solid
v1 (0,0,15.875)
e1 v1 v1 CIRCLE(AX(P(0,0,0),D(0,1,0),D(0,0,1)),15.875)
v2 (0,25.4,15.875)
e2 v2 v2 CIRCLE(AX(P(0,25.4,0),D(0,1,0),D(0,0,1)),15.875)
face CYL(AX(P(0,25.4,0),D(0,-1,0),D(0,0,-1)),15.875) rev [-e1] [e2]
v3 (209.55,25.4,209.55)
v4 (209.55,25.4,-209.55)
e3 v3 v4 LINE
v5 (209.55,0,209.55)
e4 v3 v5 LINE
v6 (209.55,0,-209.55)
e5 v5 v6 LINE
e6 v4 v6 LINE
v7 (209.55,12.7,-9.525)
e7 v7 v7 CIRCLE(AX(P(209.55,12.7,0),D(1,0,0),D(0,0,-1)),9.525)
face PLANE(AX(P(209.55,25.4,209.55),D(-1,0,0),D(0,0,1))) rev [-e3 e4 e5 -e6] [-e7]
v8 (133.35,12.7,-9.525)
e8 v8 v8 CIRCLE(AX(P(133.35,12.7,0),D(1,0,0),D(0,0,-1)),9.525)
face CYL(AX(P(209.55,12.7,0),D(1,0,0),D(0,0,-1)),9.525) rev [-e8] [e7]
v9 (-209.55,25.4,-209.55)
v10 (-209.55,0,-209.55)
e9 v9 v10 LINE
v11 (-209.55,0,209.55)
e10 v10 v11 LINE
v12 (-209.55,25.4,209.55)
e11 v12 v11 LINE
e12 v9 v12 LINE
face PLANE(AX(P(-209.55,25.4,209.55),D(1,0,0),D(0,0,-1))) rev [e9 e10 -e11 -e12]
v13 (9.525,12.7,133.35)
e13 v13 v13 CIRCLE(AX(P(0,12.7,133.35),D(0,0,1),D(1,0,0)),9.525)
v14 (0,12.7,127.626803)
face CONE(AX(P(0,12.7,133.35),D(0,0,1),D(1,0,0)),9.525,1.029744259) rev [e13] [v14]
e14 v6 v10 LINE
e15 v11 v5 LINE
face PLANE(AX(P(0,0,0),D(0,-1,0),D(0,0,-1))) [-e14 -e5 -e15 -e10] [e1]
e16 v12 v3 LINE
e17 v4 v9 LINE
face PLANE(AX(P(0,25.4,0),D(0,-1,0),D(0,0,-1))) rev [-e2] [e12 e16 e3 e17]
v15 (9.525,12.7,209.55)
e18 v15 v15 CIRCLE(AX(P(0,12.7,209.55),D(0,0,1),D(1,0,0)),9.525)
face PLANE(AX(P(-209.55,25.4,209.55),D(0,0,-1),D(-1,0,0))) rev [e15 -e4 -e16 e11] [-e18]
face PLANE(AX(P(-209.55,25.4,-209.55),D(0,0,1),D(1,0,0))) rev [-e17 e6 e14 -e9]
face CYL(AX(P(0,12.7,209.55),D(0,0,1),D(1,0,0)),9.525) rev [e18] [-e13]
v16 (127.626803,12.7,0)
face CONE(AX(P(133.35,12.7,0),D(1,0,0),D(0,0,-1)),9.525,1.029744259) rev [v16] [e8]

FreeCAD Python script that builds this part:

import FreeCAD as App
import Part
import Sketcher

V = App.Vector
Q = App.Units.Quantity

doc = App.newDocument("Part")
body = doc.addObject("PartDesign::Body", "Body")

# Sketch on XZ plane
sketch1 = body.newObject("Sketcher::SketchObject", "Sketch")
sketch1.AttachmentSupport = (doc.getObject("XZ_Plane"), [""])
sketch1.MapMode = "FlatFace"
sketch1.addGeometry([
    Part.LineSegment(V(-210, -210, 0), V(-210, 210, 0)),  # 0
    Part.LineSegment(V(-210, 210, 0), V(210, 210, 0)),  # 1
    Part.LineSegment(V(210, 210, 0), V(210, -210, 0)),  # 2
    Part.LineSegment(V(210, -210, 0), V(-210, -210, 0)),  # 3
    Part.Circle(V(0, 0, 0), V(0, 0, 1), 16),  # 4
], False)
sketch1.addConstraint([
    Sketcher.Constraint("Coincident", 0, 2, 1, 1),
    Sketcher.Constraint("Coincident", 1, 2, 2, 1),
    Sketcher.Constraint("Coincident", 2, 2, 3, 1),
    Sketcher.Constraint("Coincident", 3, 2, 0, 1),
    Sketcher.Constraint("Vertical", 0),
    Sketcher.Constraint("Horizontal", 1),
    Sketcher.Constraint("Vertical", 2),
    Sketcher.Constraint("Horizontal", 3),
    Sketcher.Constraint("Coincident", 4, 3, -1, 1),
    Sketcher.Constraint("Symmetric", 0, 2, 2, 2, -1, 1),
    Sketcher.Constraint("Equal", 3, 0),
    Sketcher.Constraint("Diameter", 4, Q("1.25 in")),
    Sketcher.Constraint("DistanceX", 1, 1, 1, 2, Q("16.5 in")),
])
pad1 = body.newObject("PartDesign::Pad", "Pad")
pad1.Profile = sketch1
pad1.Length = Q("1 in")
pad1.Reversed = True

# Sketch on YZ plane
sketch2 = body.newObject("Sketcher::SketchObject", "Sketch001")
sketch2.AttachmentSupport = (doc.getObject("YZ_Plane"), [""])
sketch2.MapMode = "FlatFace"
sketch2.AttachmentOffset = App.Placement(V(0, 0, 8.25 * 25.4), App.Rotation())
sketch2.addGeometry(Part.Circle(V(13, 0, 0), V(0, 0, 1), 10), False)
sketch2.addConstraint([
    Sketcher.Constraint("PointOnObject", 0, 3, -1),
    Sketcher.Constraint("Diameter", 0, Q("0.75 in")),
    Sketcher.Constraint("DistanceX", -1, 1, 0, 3, Q("0.5 in")),
])
doc.recompute()
hole = body.newObject("PartDesign::Hole", "Hole")
hole.Profile = sketch2
hole.ThreadType = "None"
hole.Diameter = Q("0.75 in")
hole.DepthType = "Dimension"
hole.Depth = Q("3 in")
hole.DrillPoint = "Angled"
hole.DrillPointAngle = 118

# Sketch on XY plane
sketch3 = body.newObject("Sketcher::SketchObject", "Sketch002")
sketch3.AttachmentSupport = (doc.getObject("XY_Plane"), [""])
sketch3.MapMode = "FlatFace"
sketch3.AttachmentOffset = App.Placement(V(0, 0, 8.25 * 25.4), App.Rotation())
sketch3.addGeometry(Part.Circle(V(0, 13, 0), V(0, 0, 1), 10), False)
sketch3.addConstraint([
    Sketcher.Constraint("PointOnObject", 0, 3, -2),
    Sketcher.Constraint("Diameter", 0, Q("0.75 in")),
    Sketcher.Constraint("DistanceY", -1, 1, 0, 3, Q("0.5 in")),
])
doc.recompute()
hole2 = body.newObject("PartDesign::Hole", "Hole001")
hole2.Profile = sketch3
hole2.ThreadType = "None"
hole2.Diameter = Q("0.75 in")
hole2.DepthType = "Dimension"
hole2.Depth = Q("3 in")
hole2.DrillPoint = "Angled"
hole2.DrillPointAngle = 118

doc.recompute()
